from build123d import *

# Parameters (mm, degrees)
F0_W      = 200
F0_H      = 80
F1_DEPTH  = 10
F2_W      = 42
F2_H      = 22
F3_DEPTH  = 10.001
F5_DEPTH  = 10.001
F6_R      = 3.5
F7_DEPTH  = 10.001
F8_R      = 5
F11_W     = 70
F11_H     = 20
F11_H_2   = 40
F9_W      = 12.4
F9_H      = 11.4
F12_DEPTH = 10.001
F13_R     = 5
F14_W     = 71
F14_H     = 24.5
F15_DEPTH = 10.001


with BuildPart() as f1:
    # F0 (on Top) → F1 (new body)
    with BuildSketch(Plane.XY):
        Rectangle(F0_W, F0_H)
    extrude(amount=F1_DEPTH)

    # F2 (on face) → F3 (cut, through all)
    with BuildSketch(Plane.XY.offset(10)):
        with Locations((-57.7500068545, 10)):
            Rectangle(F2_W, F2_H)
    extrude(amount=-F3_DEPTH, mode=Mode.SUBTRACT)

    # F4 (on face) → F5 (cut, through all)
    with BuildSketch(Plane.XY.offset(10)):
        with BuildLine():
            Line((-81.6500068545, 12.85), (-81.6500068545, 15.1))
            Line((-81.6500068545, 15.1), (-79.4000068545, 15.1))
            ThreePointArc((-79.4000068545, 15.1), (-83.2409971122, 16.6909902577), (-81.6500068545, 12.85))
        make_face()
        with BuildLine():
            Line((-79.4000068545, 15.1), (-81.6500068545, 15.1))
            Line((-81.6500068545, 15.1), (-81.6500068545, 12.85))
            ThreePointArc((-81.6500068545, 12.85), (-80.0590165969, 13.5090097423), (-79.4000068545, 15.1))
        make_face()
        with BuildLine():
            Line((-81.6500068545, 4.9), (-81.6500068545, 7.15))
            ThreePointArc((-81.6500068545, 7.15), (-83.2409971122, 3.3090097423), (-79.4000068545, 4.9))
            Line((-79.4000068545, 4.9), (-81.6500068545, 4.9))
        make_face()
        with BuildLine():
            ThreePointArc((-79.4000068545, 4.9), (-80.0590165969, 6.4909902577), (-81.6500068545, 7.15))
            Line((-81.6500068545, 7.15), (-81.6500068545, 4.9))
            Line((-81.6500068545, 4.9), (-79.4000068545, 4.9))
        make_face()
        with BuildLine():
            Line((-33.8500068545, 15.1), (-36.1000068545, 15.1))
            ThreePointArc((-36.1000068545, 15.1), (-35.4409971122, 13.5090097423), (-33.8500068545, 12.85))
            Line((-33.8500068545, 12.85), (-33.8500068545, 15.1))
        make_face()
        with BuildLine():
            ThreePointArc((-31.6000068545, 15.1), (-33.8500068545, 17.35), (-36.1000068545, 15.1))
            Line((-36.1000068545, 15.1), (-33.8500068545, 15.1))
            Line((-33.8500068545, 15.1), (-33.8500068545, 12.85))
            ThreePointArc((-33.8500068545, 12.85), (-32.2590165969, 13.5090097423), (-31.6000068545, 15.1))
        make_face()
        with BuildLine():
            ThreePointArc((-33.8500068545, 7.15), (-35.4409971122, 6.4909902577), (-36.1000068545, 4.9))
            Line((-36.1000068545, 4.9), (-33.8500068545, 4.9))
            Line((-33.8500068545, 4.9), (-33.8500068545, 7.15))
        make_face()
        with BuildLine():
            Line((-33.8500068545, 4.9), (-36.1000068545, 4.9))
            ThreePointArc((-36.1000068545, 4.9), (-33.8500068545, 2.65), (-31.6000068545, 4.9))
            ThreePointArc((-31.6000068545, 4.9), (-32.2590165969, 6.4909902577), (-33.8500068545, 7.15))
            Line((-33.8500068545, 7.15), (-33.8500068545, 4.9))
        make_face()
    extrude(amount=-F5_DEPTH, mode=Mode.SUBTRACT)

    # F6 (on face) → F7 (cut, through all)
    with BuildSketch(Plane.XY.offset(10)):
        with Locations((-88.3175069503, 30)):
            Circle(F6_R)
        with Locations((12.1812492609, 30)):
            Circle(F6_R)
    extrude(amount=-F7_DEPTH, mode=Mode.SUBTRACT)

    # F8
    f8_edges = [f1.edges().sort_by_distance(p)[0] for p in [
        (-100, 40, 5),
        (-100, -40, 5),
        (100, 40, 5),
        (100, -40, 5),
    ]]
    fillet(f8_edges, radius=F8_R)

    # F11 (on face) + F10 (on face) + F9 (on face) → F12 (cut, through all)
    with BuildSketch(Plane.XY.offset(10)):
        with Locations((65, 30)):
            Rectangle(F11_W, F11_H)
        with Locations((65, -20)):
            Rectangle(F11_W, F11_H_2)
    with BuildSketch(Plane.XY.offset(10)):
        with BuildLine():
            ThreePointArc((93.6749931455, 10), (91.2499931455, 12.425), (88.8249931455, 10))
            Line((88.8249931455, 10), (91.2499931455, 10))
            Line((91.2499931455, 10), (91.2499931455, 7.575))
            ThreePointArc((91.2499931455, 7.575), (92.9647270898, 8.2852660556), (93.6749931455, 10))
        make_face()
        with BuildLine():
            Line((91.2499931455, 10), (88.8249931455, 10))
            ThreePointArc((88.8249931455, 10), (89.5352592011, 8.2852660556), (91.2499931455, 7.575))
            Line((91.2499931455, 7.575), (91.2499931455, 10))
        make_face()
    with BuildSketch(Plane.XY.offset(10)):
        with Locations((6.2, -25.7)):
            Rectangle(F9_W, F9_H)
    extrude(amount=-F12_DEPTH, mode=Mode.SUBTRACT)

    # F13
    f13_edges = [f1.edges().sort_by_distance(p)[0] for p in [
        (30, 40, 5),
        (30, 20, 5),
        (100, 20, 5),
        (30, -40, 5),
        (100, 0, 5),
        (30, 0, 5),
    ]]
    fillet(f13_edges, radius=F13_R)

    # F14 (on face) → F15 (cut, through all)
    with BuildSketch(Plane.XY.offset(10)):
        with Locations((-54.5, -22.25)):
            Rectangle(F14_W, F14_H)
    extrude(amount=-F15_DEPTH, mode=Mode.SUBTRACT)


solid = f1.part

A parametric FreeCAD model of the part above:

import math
import FreeCAD as App
import Part
import Sketcher

V = App.Vector
Q = App.Units.Quantity


def edges_at(feature, points):
    """Names of the edges that pass closest to the given points."""
    edges = feature.Shape.Edges
    near = lambda p: min(range(len(edges)), key=lambda i: edges[i].distToShape(Part.Vertex(*p))[0])
    return sorted({f"Edge{near(p) + 1}" for p in points})

doc = App.newDocument("Part")
params = doc.addObject("Spreadsheet::Sheet", "Params")
for row, (alias, value) in enumerate([
    ("sketch1_width", "200 mm"),
    ("sketch1_height", "80 mm"),
    ("pad1_length", "10 mm"),
    ("sketch2_width", "42 mm"),
    ("sketch2_height", "22 mm"),
    ("sketch3_radius", "2.25 mm"),
    ("sketch4_diameter", "7 mm"),
    ("fillet_radius", "5 mm"),
    ("sketch5_width", "70 mm"),
    ("sketch5_height", "20 mm"),
    ("sketch5_height2", "40 mm"),
    ("sketch5_width2", "12.4 mm"),
    ("sketch5_height3", "11.4 mm"),
    ("fillet2_radius", "5 mm"),
    ("sketch6_width", "71 mm"),
    ("sketch6_height", "24.5 mm"),
], start=1):
    params.set(f"A{row}", alias)
    params.set(f"B{row}", "=" + value)
    params.setAlias(f"B{row}", alias)

body = doc.addObject("PartDesign::Body", "Body")

sketch1 = body.newObject("Sketcher::SketchObject", "Sketch")
sketch1.AttachmentSupport = (doc.getObject("XY_Plane"), [""])
sketch1.MapMode = "FlatFace"
sketch1.addGeometry([
    Part.LineSegment(V(-100, 40, 0), V(-100, -40, 0)),
    Part.LineSegment(V(-100, -40, 0), V(100, -40, 0)),
    Part.LineSegment(V(100, -40, 0), V(100, 40, 0)),
    Part.LineSegment(V(100, 40, 0), V(-100, 40, 0)),
], False)
sketch1.addConstraint([
    Sketcher.Constraint("Coincident", 0, 2, 1, 1),
    Sketcher.Constraint("Coincident", 1, 2, 2, 1),
    Sketcher.Constraint("Coincident", 2, 2, 3, 1),
    Sketcher.Constraint("Coincident", 3, 2, 0, 1),
    Sketcher.Constraint("Vertical", 0),
    Sketcher.Constraint("Horizontal", 1),
    Sketcher.Constraint("Vertical", 2),
    Sketcher.Constraint("Horizontal", 3),
    Sketcher.Constraint("Symmetric", 0, 2, 2, 2, -1, 1),
    Sketcher.Constraint("DistanceX", 1, 1, 1, 2, Q("200 mm")),
    Sketcher.Constraint("DistanceY", 0, 2, 0, 1, Q("80 mm")),
])
sketch1.setExpression("Constraints[9]", "Params.sketch1_width")
sketch1.setExpression("Constraints[10]", "Params.sketch1_height")
pad1 = body.newObject("PartDesign::Pad", "Pad")
pad1.Profile = sketch1
pad1.setExpression("Length", "Params.pad1_length")

sketch2 = body.newObject("Sketcher::SketchObject", "Sketch001")
sketch2.AttachmentSupport = (doc.getObject("XY_Plane"), [""])
sketch2.MapMode = "FlatFace"
sketch2.AttachmentOffset = App.Placement(V(0, 0, 10), App.Rotation())
sketch2.addGeometry([
    Part.LineSegment(V(-79, 21, 0), V(-79, -1, 0)),
    Part.LineSegment(V(-79, -1, 0), V(-37, -1, 0)),
    Part.LineSegment(V(-37, -1, 0), V(-37, 21, 0)),
    Part.LineSegment(V(-37, 21, 0), V(-79, 21, 0)),
], False)
sketch2.addConstraint([
    Sketcher.Constraint("Coincident", 0, 2, 1, 1),
    Sketcher.Constraint("Coincident", 1, 2, 2, 1),
    Sketcher.Constraint("Coincident", 2, 2, 3, 1),
    Sketcher.Constraint("Coincident", 3, 2, 0, 1),
    Sketcher.Constraint("Vertical", 0),
    Sketcher.Constraint("Horizontal", 1),
    Sketcher.Constraint("Vertical", 2),
    Sketcher.Constraint("Horizontal", 3),
    Sketcher.Constraint("DistanceX", 1, 1, 1, 2, Q("42 mm")),
    Sketcher.Constraint("DistanceY", 0, 2, 0, 1, Q("22 mm")),
    Sketcher.Constraint("DistanceY", 0, 2, -1, 1, Q("1 mm")),
    Sketcher.Constraint("DistanceX", 0, 2, -1, 1, Q("78.750007 mm")),
])
sketch2.setExpression("Constraints[8]", "Params.sketch2_width")
sketch2.setExpression("Constraints[9]", "Params.sketch2_height")
pocket1 = body.newObject("PartDesign::Pocket", "Pocket")
pocket1.Profile = sketch2
pocket1.Type = "ThroughAll"

sketch3 = body.newObject("Sketcher::SketchObject", "Sketch002")
sketch3.AttachmentSupport = (doc.getObject("XY_Plane"), [""])
sketch3.MapMode = "FlatFace"
sketch3.AttachmentOffset = App.Placement(V(0, 0, 10), App.Rotation())
sketch3.addGeometry([
    Part.ArcOfCircle(Part.Circle(V(-81.7, 15.1, 0), V(0, 0, 1), 2.2), math.radians(0), math.radians(270)),
    Part.ArcOfCircle(Part.Circle(V(-81.7, 15.1, 0), V(0, 0, 1), 2.2), math.radians(-90), math.radians(0)),
    Part.ArcOfCircle(Part.Circle(V(-81.7, 4.9, 0), V(0, 0, 1), 2.2), math.radians(90), math.radians(360)),
    Part.ArcOfCircle(Part.Circle(V(-81.7, 4.9, 0), V(0, 0, 1), 2.2), math.radians(0), math.radians(90)),
    Part.ArcOfCircle(Part.Circle(V(-33.9, 15.1, 0), V(0, 0, 1), 2.2), math.radians(180), math.radians(270)),
    Part.ArcOfCircle(Part.Circle(V(-33.9, 15.1, 0), V(0, 0, 1), 2.2), math.radians(-90), math.radians(0)),
    Part.ArcOfCircle(Part.Circle(V(-33.9, 15.1, 0), V(0, 0, 1), 2.2), math.radians(0), math.radians(180)),
    Part.ArcOfCircle(Part.Circle(V(-33.9, 4.9, 0), V(0, 0, 1), 2.2), math.radians(90), math.radians(180)),
    Part.ArcOfCircle(Part.Circle(V(-33.9, 4.9, 0), V(0, 0, 1), 2.2), math.radians(180), math.radians(360)),
    Part.ArcOfCircle(Part.Circle(V(-33.9, 4.9, 0), V(0, 0, 1), 2.2), math.radians(0), math.radians(90)),
], False)
sketch3.addConstraint([
    Sketcher.Constraint("Tangent", 0, 1, 1, 2),
    Sketcher.Constraint("Coincident", 1, 1, 0, 2),
    Sketcher.Constraint("Tangent", 2, 1, 3, 2),
    Sketcher.Constraint("Coincident", 3, 1, 2, 2),
    Sketcher.Constraint("Tangent", 4, 2, 5, 1),
    Sketcher.Constraint("Tangent", 5, 2, 6, 1),
    Sketcher.Constraint("Tangent", 6, 2, 4, 1),
    Sketcher.Constraint("Tangent", 7, 2, 8, 1),
    Sketcher.Constraint("Tangent", 8, 2, 9, 1),
    Sketcher.Constraint("Tangent", 9, 2, 7, 1),
    Sketcher.Constraint("Equal", 1, 2),
    Sketcher.Constraint("Equal", 3, 4),
    Sketcher.Constraint("Equal", 6, 7),
    Sketcher.Constraint("Horizontal", 1, 3, 4, 3),
    Sketcher.Constraint("Horizontal", 3, 3, 7, 3),
    Sketcher.Constraint("Horizontal", 6, 3, 0, 1),
    Sketcher.Constraint("Horizontal", 9, 3, 3, 1),
    Sketcher.Constraint("Horizontal", 0, 1, 5, 2),
    Sketcher.Constraint("Horizontal", 5, 2, 6, 2),
    Sketcher.Constraint("Horizontal", 3, 1, 7, 2),
    Sketcher.Constraint("Horizontal", 7, 2, 8, 2),
    Sketcher.Constraint("Vertical", 1, 3, 2, 3),
    Sketcher.Constraint("Vertical", 6, 3, 7, 3),
    Sketcher.Constraint("Vertical", 3, 3, 1, 1),
    Sketcher.Constraint("Vertical", 1, 1, 2, 1),
    Sketcher.Constraint("Vertical", 9, 3, 4, 2),
    Sketcher.Constraint("Vertical", 4, 2, 9, 2),
    Sketcher.Constraint("Radius", 0, Q("2.25 mm")),
    Sketcher.Constraint("DistanceY", -1, 1, 0, 3, Q("15.1 mm")),
    Sketcher.Constraint("DistanceY", -1, 1, 2, 3, Q("4.9 mm")),
    Sketcher.Constraint("DistanceX", 0, 3, 4, 3, Q("47.8 mm")),
    Sketcher.Constraint("DistanceX", 0, 3, -1, 1, Q("81.650007 mm")),
])
sketch3.setExpression("Constraints[27]", "Params.sketch3_radius")
pocket2 = body.newObject("PartDesign::Pocket", "Pocket001")
pocket2.Profile = sketch3
pocket2.Type = "ThroughAll"

sketch4 = body.newObject("Sketcher::SketchObject", "Sketch003")
sketch4.AttachmentSupport = (doc.getObject("XY_Plane"), [""])
sketch4.MapMode = "FlatFace"
sketch4.AttachmentOffset = App.Placement(V(0, 0, 10), App.Rotation())
sketch4.addGeometry([
    Part.Circle(V(-88.3, 30, 0), V(0, 0, 1), 3.5),
    Part.Circle(V(12.2, 30, 0), V(0, 0, 1), 3.5),
], False)
sketch4.addConstraint([
    Sketcher.Constraint("Equal", 0, 1),
    Sketcher.Constraint("Horizontal", 0, 3, 1, 3),
    Sketcher.Constraint("Diameter", 0, Q("7 mm")),
    Sketcher.Constraint("DistanceY", -1, 1, 0, 3, Q("30 mm")),
    Sketcher.Constraint("DistanceX", -1, 1, 1, 3, Q("12.181249 mm")),
    Sketcher.Constraint("DistanceX", 0, 3, -1, 1, Q("88.317507 mm")),
])
sketch4.setExpression("Constraints[2]", "Params.sketch4_diameter")
pocket3 = body.newObject("PartDesign::Pocket", "Pocket002")
pocket3.Profile = sketch4
pocket3.Type = "ThroughAll"
doc.recompute()

fillet = body.newObject("PartDesign::Fillet", "Fillet")
fillet.Base = (pocket3, edges_at(pocket3, [
    (-100, 40, 5),
    (-100, -40, 5),
    (100, 40, 5),
    (100, -40, 5),
]))
fillet.setExpression("Radius", "Params.fillet_radius")

sketch5 = body.newObject("Sketcher::SketchObject", "Sketch004")
sketch5.AttachmentSupport = (doc.getObject("XY_Plane"), [""])
sketch5.MapMode = "FlatFace"
sketch5.AttachmentOffset = App.Placement(V(0, 0, 10), App.Rotation())
sketch5.addGeometry([
    Part.LineSegment(V(30, 40, 0), V(30, 20, 0)),
    Part.LineSegment(V(30, 20, 0), V(100, 20, 0)),
    Part.LineSegment(V(100, 20, 0), V(100, 40, 0)),
    Part.LineSegment(V(100, 40, 0), V(30, 40, 0)),
    Part.LineSegment(V(30, 0, 0), V(30, -40, 0)),
    Part.LineSegment(V(30, -40, 0), V(100, -40, 0)),
    Part.LineSegment(V(100, -40, 0), V(100, 0, 0)),
    Part.LineSegment(V(100, 0, 0), V(30, 0, 0)),
    Part.ArcOfCircle(Part.Circle(V(91.2, 10, 0), V(0, 0, 1), 2.4), math.radians(0), math.radians(180)),
    Part.ArcOfCircle(Part.Circle(V(91.2, 10, 0), V(0, 0, 1), 2.4), math.radians(180), math.radians(270)),
    Part.ArcOfCircle(Part.Circle(V(91.2, 10, 0), V(0, 0, 1), 2.4), math.radians(-90), math.radians(0)),
    Part.LineSegment(V(0, -20, 0), V(0, -31.4, 0)),
    Part.LineSegment(V(0, -31.4, 0), V(12.4, -31.4, 0)),
    Part.LineSegment(V(12.4, -31.4, 0), V(12.4, -20, 0)),
    Part.LineSegment(V(12.4, -20, 0), V(0, -20, 0)),
], False)
sketch5.addConstraint([
    Sketcher.Constraint("Coincident", 0, 2, 1, 1),
    Sketcher.Constraint("Coincident", 1, 2, 2, 1),
    Sketcher.Constraint("Coincident", 2, 2, 3, 1),
    Sketcher.Constraint("Coincident", 3, 2, 0, 1),
    Sketcher.Constraint("Coincident", 4, 2, 5, 1),
    Sketcher.Constraint("Coincident", 5, 2, 6, 1),
    Sketcher.Constraint("Coincident", 6, 2, 7, 1),
    Sketcher.Constraint("Coincident", 7, 2, 4, 1),
    Sketcher.Constraint("Tangent", 8, 2, 9, 1),
    Sketcher.Constraint("Tangent", 9, 2, 10, 1),
    Sketcher.Constraint("Tangent", 10, 2, 8, 1),
    Sketcher.Constraint("Coincident", 11, 2, 12, 1),
    Sketcher.Constraint("Coincident", 12, 2, 13, 1),
    Sketcher.Constraint("Coincident", 13, 2, 14, 1),
    Sketcher.Constraint("Coincident", 14, 2, 11, 1),
    Sketcher.Constraint("Vertical", 0),
    Sketcher.Constraint("Horizontal", 1),
    Sketcher.Constraint("Vertical", 2),
    Sketcher.Constraint("Horizontal", 3),
    Sketcher.Constraint("Vertical", 4),
    Sketcher.Constraint("Horizontal", 5),
    Sketcher.Constraint("Vertical", 6),
    Sketcher.Constraint("Horizontal", 7),
    Sketcher.Constraint("Vertical", 11),
    Sketcher.Constraint("Horizontal", 12),
    Sketcher.Constraint("Vertical", 13),
    Sketcher.Constraint("Horizontal", 14),
    Sketcher.Constraint("Symmetric", 3, 2, 4, 2, -1),
    Sketcher.Constraint("PointOnObject", 6, 2, -1),
    Sketcher.Constraint("PointOnObject", 11, 2, -2),
    Sketcher.Constraint("Horizontal", 10, 3, 8, 2),
    Sketcher.Constraint("Horizontal", 8, 2, 10, 2),
    Sketcher.Constraint("Vertical", 2, 2, 5, 2),
    Sketcher.Constraint("Vertical", 10, 3, 9, 2),
    Sketcher.Constraint("DistanceX", 1, 1, 1, 2, Q("70 mm")),
    Sketcher.Constraint("DistanceY", 0, 2, 0, 1, Q("20 mm")),
    Sketcher.Constraint("DistanceY", 4, 2, 4, 1, Q("40 mm")),
    Sketcher.Constraint("DistanceX", 12, 1, 12, 2, Q("12.4 mm")),
    Sketcher.Constraint("DistanceY", 11, 2, 11, 1, Q("11.4 mm")),
    Sketcher.Constraint("DistanceY", -1, 1, 8, 3, Q("10 mm")),
    Sketcher.Constraint("DistanceX", -1, 1, 0, 2, Q("30 mm")),
    Sketcher.Constraint("DistanceY", 13, 2, -1, 1, Q("20 mm")),
    Sketcher.Constraint("Radius", 8, Q("2.425 mm")),
    Sketcher.Constraint("DistanceX", -1, 1, 8, 3, Q("91.249993 mm")),
])
sketch5.setExpression("Constraints[34]", "Params.sketch5_width")
sketch5.setExpression("Constraints[35]", "Params.sketch5_height")
sketch5.setExpression("Constraints[36]", "Params.sketch5_height2")
sketch5.setExpression("Constraints[37]", "Params.sketch5_width2")
sketch5.setExpression("Constraints[38]", "Params.sketch5_height3")
pocket4 = body.newObject("PartDesign::Pocket", "Pocket003")
pocket4.Profile = sketch5
pocket4.Type = "ThroughAll"
doc.recompute()

fillet2 = body.newObject("PartDesign::Fillet", "Fillet001")
fillet2.Base = (pocket4, edges_at(pocket4, [
    (30, 40, 5),
    (30, 20, 5),
    (100, 20, 5),
    (30, -40, 5),
    (100, 0, 5),
    (30, 0, 5),
]))
fillet2.setExpression("Radius", "Params.fillet2_radius")

sketch6 = body.newObject("Sketcher::SketchObject", "Sketch005")
sketch6.AttachmentSupport = (doc.getObject("XY_Plane"), [""])
sketch6.MapMode = "FlatFace"
sketch6.AttachmentOffset = App.Placement(V(0, 0, 10), App.Rotation())
sketch6.addGeometry([
    Part.LineSegment(V(-90, -10, 0), V(-90, -34, 0)),
    Part.LineSegment(V(-90, -34, 0), V(-19, -34, 0)),
    Part.LineSegment(V(-19, -34, 0), V(-19, -10, 0)),
    Part.LineSegment(V(-19, -10, 0), V(-90, -10, 0)),
], False)
sketch6.addConstraint([
    Sketcher.Constraint("Coincident", 0, 2, 1, 1),
    Sketcher.Constraint("Coincident", 1, 2, 2, 1),
    Sketcher.Constraint("Coincident", 2, 2, 3, 1),
    Sketcher.Constraint("Coincident", 3, 2, 0, 1),
    Sketcher.Constraint("Vertical", 0),
    Sketcher.Constraint("Horizontal", 1),
    Sketcher.Constraint("Vertical", 2),
    Sketcher.Constraint("Horizontal", 3),
    Sketcher.Constraint("DistanceX", 1, 1, 1, 2, Q("71 mm")),
    Sketcher.Constraint("DistanceY", 0, 2, 0, 1, Q("24.5 mm")),
    Sketcher.Constraint("DistanceX", 0, 2, -1, 1, Q("90 mm")),
    Sketcher.Constraint("DistanceY", 2, 2, -1, 1, Q("10 mm")),
])
sketch6.setExpression("Constraints[8]", "Params.sketch6_width")
sketch6.setExpression("Constraints[9]", "Params.sketch6_height")
pocket5 = body.newObject("PartDesign::Pocket", "Pocket004")
pocket5.Profile = sketch6
pocket5.Type = "ThroughAll"

doc.recompute()
